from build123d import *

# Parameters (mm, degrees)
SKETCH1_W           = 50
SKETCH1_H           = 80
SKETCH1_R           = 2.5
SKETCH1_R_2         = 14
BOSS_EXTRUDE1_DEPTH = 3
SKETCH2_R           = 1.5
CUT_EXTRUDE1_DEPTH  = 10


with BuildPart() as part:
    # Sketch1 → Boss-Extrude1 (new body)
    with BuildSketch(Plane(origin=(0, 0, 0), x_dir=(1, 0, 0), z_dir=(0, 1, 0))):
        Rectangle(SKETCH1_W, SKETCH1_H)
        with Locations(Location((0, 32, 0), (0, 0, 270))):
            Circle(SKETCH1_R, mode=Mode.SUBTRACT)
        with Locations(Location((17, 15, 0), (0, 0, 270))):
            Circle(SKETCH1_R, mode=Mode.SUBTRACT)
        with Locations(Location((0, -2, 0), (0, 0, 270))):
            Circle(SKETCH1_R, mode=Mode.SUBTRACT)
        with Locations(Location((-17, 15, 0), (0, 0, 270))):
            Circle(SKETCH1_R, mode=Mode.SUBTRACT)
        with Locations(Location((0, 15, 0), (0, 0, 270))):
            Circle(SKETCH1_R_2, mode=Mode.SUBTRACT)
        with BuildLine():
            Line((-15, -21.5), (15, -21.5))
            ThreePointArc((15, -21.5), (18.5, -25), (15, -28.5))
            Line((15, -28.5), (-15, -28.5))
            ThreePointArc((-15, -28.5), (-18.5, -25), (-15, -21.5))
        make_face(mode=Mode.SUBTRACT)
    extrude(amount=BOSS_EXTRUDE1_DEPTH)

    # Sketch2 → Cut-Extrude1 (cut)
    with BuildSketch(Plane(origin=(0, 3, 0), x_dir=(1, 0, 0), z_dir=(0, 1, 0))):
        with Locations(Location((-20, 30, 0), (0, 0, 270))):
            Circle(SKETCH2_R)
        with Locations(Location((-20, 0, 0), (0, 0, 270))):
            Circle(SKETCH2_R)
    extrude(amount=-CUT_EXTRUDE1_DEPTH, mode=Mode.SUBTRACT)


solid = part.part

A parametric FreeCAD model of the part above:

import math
import FreeCAD as App
import Part
import Sketcher
from FreeCAD import Vector
Q = App.Units.Quantity


def add_polygon(sketch, points):
    """Adds a closed chain of lines whose ends are joined by coincident constraints."""
    first, n = sketch.GeometryCount, len(points)
    for a, b in zip(points, points[1:] + points[:1]):
        sketch.addGeometry(Part.LineSegment(App.Vector(*a, 0), App.Vector(*b, 0)), False)
    for i in range(n):
        sketch.addConstraint(Sketcher.Constraint("Coincident", first + i, 2, first + (i + 1) % n, 1))

doc = App.newDocument("Part")
params = doc.addObject("Spreadsheet::Sheet", "Params")
for row, (alias, value) in enumerate([
    ("sketch1_diameter", "5 mm"),
    ("sketch1_diameter2", "28 mm"),
    ("sketch1_radius", "3.5 mm"),
    ("sketch1_width", "50 mm"),
    ("sketch1_width2", "30 mm"),
    ("pad1_length", "3 mm"),
    ("sketch2_diameter", "3 mm"),
    ("pocket1_length", "10 mm"),
], start=1):
    params.set(f"A{row}", alias)
    params.set(f"B{row}", "=" + value)
    params.setAlias(f"B{row}", alias)

body = doc.addObject("PartDesign::Body", "Body")

sketch1 = doc.addObject("Sketcher::SketchObject", "Sketch")
body.addObject(sketch1)
sketch1.AttachmentSupport = (doc.XZ_Plane, [""])
sketch1.MapMode = "FlatFace"
add_polygon(sketch1, [(-25, -40), (-25, 40), (25, 40), (25, -40)])
sketch1.addGeometry(Part.ArcOfCircle(Part.Circle(Vector(-15, 25, 0), Vector(0, 0, 1), 3.5), math.radians(90), math.radians(270)), False)
sketch1.addGeometry(Part.LineSegment(Vector(-15, 21.5, 0), Vector(15, 21.5, 0)), False)
sketch1.addGeometry(Part.ArcOfCircle(Part.Circle(Vector(15, 25, 0), Vector(0, 0, 1), 3.5), math.radians(-90), math.radians(90)), False)
sketch1.addGeometry(Part.LineSegment(Vector(15, 28.5, 0), Vector(-15, 28.5, 0)), False)
sketch1.addGeometry(Part.Circle(Vector(0, 2, 0), Vector(0, 0, 1), 2.5), False)
sketch1.addGeometry(Part.Circle(Vector(-17, -15, 0), Vector(0, 0, 1), 2.5), False)
sketch1.addGeometry(Part.Circle(Vector(0, -15, 0), Vector(0, 0, 1), 14), False)
sketch1.addGeometry(Part.Circle(Vector(17, -15, 0), Vector(0, 0, 1), 2.5), False)
sketch1.addGeometry(Part.Circle(Vector(0, -32, 0), Vector(0, 0, 1), 2.5), False)
sketch1.addConstraint(Sketcher.Constraint("Tangent", 4, 2, 5, 1))
sketch1.addConstraint(Sketcher.Constraint("Tangent", 5, 2, 6, 1))
sketch1.addConstraint(Sketcher.Constraint("Tangent", 6, 2, 7, 1))
sketch1.addConstraint(Sketcher.Constraint("Tangent", 7, 2, 4, 1))
sketch1.addConstraint(Sketcher.Constraint("Vertical", 0))
sketch1.addConstraint(Sketcher.Constraint("Horizontal", 1))
sketch1.addConstraint(Sketcher.Constraint("Vertical", 2))
sketch1.addConstraint(Sketcher.Constraint("Horizontal", 3))
sketch1.addConstraint(Sketcher.Constraint("Horizontal", 5))
sketch1.addConstraint(Sketcher.Constraint("Horizontal", 7))
sketch1.addConstraint(Sketcher.Constraint("Equal", 8, 9))
sketch1.addConstraint(Sketcher.Constraint("Equal", 9, 11))
sketch1.addConstraint(Sketcher.Constraint("Equal", 11, 12))
sketch1.addConstraint(Sketcher.Constraint("Symmetric", 0, 2, 2, 2, -1, 1))
sketch1.addConstraint(Sketcher.Constraint("Symmetric", 9, 3, 11, 3, -2))
sketch1.addConstraint(Sketcher.Constraint("PointOnObject", 8, 3, -2))
sketch1.addConstraint(Sketcher.Constraint("PointOnObject", 10, 3, -2))
sketch1.addConstraint(Sketcher.Constraint("PointOnObject", 12, 3, -2))
sketch1.addConstraint(Sketcher.Constraint("Horizontal", 9, 3, 10, 3))
sketch1.addConstraint(Sketcher.Constraint("Diameter", 8, Q("5 mm")))
sketch1.addConstraint(Sketcher.Constraint("Diameter", 10, Q("28 mm")))
sketch1.addConstraint(Sketcher.Constraint("Radius", 4, Q("3.5 mm")))
sketch1.addConstraint(Sketcher.Constraint("DistanceX", 1, 1, 1, 2, Q("50 mm")))
sketch1.addConstraint(Sketcher.Constraint("DistanceX", 5, 1, 5, 2, Q("30 mm")))
sketch1.addConstraint(Sketcher.Constraint("DistanceY", 0, 1, 0, 2, Q("80 mm")))
sketch1.addConstraint(Sketcher.Constraint("DistanceX", 4, 3, -1, 1, Q("15 mm")))
sketch1.addConstraint(Sketcher.Constraint("DistanceY", -1, 1, 4, 3, Q("25 mm")))
sketch1.addConstraint(Sketcher.Constraint("DistanceY", -1, 1, 8, 3, Q("2 mm")))
sketch1.addConstraint(Sketcher.Constraint("DistanceX", 9, 3, -1, 1, Q("17 mm")))
sketch1.addConstraint(Sketcher.Constraint("DistanceY", 9, 3, -1, 1, Q("15 mm")))
sketch1.addConstraint(Sketcher.Constraint("DistanceY", 12, 3, -1, 1, Q("32 mm")))
sketch1.setExpression("Constraints[23]", "Params.sketch1_diameter")
sketch1.setExpression("Constraints[24]", "Params.sketch1_diameter2")
sketch1.setExpression("Constraints[25]", "Params.sketch1_radius")
sketch1.setExpression("Constraints[26]", "Params.sketch1_width")
sketch1.setExpression("Constraints[27]", "Params.sketch1_width2")
pad1 = doc.addObject("PartDesign::Pad", "Pad")
body.addObject(pad1)
pad1.Profile = sketch1
pad1.setExpression("Length", "Params.pad1_length")
pad1.Reversed = True

sketch2 = doc.addObject("Sketcher::SketchObject", "Sketch001")
body.addObject(sketch2)
sketch2.AttachmentSupport = (doc.XZ_Plane, [""])
sketch2.MapMode = "FlatFace"
sketch2.AttachmentOffset = App.Placement(Vector(0, 0, -3), App.Rotation())
sketch2.addGeometry(Part.Circle(Vector(-20, -30, 0), Vector(0, 0, 1), 1.5), False)
sketch2.addGeometry(Part.Circle(Vector(-20, 0, 0), Vector(0, 0, 1), 1.5), False)
sketch2.addConstraint(Sketcher.Constraint("Equal", 0, 1))
sketch2.addConstraint(Sketcher.Constraint("PointOnObject", 1, 3, -1))
sketch2.addConstraint(Sketcher.Constraint("Vertical", 0, 3, 1, 3))
sketch2.addConstraint(Sketcher.Constraint("Diameter", 0, Q("3 mm")))
sketch2.addConstraint(Sketcher.Constraint("DistanceX", 0, 3, -1, 1, Q("20 mm")))
sketch2.addConstraint(Sketcher.Constraint("DistanceY", 0, 3, -1, 1, Q("30 mm")))
sketch2.setExpression("Constraints[3]", "Params.sketch2_diameter")
pocket1 = doc.addObject("PartDesign::Pocket", "Pocket")
body.addObject(pocket1)
pocket1.Profile = sketch2
pocket1.setExpression("Length", "Params.pocket1_length")
pocket1.Reversed = True

doc.recompute()
